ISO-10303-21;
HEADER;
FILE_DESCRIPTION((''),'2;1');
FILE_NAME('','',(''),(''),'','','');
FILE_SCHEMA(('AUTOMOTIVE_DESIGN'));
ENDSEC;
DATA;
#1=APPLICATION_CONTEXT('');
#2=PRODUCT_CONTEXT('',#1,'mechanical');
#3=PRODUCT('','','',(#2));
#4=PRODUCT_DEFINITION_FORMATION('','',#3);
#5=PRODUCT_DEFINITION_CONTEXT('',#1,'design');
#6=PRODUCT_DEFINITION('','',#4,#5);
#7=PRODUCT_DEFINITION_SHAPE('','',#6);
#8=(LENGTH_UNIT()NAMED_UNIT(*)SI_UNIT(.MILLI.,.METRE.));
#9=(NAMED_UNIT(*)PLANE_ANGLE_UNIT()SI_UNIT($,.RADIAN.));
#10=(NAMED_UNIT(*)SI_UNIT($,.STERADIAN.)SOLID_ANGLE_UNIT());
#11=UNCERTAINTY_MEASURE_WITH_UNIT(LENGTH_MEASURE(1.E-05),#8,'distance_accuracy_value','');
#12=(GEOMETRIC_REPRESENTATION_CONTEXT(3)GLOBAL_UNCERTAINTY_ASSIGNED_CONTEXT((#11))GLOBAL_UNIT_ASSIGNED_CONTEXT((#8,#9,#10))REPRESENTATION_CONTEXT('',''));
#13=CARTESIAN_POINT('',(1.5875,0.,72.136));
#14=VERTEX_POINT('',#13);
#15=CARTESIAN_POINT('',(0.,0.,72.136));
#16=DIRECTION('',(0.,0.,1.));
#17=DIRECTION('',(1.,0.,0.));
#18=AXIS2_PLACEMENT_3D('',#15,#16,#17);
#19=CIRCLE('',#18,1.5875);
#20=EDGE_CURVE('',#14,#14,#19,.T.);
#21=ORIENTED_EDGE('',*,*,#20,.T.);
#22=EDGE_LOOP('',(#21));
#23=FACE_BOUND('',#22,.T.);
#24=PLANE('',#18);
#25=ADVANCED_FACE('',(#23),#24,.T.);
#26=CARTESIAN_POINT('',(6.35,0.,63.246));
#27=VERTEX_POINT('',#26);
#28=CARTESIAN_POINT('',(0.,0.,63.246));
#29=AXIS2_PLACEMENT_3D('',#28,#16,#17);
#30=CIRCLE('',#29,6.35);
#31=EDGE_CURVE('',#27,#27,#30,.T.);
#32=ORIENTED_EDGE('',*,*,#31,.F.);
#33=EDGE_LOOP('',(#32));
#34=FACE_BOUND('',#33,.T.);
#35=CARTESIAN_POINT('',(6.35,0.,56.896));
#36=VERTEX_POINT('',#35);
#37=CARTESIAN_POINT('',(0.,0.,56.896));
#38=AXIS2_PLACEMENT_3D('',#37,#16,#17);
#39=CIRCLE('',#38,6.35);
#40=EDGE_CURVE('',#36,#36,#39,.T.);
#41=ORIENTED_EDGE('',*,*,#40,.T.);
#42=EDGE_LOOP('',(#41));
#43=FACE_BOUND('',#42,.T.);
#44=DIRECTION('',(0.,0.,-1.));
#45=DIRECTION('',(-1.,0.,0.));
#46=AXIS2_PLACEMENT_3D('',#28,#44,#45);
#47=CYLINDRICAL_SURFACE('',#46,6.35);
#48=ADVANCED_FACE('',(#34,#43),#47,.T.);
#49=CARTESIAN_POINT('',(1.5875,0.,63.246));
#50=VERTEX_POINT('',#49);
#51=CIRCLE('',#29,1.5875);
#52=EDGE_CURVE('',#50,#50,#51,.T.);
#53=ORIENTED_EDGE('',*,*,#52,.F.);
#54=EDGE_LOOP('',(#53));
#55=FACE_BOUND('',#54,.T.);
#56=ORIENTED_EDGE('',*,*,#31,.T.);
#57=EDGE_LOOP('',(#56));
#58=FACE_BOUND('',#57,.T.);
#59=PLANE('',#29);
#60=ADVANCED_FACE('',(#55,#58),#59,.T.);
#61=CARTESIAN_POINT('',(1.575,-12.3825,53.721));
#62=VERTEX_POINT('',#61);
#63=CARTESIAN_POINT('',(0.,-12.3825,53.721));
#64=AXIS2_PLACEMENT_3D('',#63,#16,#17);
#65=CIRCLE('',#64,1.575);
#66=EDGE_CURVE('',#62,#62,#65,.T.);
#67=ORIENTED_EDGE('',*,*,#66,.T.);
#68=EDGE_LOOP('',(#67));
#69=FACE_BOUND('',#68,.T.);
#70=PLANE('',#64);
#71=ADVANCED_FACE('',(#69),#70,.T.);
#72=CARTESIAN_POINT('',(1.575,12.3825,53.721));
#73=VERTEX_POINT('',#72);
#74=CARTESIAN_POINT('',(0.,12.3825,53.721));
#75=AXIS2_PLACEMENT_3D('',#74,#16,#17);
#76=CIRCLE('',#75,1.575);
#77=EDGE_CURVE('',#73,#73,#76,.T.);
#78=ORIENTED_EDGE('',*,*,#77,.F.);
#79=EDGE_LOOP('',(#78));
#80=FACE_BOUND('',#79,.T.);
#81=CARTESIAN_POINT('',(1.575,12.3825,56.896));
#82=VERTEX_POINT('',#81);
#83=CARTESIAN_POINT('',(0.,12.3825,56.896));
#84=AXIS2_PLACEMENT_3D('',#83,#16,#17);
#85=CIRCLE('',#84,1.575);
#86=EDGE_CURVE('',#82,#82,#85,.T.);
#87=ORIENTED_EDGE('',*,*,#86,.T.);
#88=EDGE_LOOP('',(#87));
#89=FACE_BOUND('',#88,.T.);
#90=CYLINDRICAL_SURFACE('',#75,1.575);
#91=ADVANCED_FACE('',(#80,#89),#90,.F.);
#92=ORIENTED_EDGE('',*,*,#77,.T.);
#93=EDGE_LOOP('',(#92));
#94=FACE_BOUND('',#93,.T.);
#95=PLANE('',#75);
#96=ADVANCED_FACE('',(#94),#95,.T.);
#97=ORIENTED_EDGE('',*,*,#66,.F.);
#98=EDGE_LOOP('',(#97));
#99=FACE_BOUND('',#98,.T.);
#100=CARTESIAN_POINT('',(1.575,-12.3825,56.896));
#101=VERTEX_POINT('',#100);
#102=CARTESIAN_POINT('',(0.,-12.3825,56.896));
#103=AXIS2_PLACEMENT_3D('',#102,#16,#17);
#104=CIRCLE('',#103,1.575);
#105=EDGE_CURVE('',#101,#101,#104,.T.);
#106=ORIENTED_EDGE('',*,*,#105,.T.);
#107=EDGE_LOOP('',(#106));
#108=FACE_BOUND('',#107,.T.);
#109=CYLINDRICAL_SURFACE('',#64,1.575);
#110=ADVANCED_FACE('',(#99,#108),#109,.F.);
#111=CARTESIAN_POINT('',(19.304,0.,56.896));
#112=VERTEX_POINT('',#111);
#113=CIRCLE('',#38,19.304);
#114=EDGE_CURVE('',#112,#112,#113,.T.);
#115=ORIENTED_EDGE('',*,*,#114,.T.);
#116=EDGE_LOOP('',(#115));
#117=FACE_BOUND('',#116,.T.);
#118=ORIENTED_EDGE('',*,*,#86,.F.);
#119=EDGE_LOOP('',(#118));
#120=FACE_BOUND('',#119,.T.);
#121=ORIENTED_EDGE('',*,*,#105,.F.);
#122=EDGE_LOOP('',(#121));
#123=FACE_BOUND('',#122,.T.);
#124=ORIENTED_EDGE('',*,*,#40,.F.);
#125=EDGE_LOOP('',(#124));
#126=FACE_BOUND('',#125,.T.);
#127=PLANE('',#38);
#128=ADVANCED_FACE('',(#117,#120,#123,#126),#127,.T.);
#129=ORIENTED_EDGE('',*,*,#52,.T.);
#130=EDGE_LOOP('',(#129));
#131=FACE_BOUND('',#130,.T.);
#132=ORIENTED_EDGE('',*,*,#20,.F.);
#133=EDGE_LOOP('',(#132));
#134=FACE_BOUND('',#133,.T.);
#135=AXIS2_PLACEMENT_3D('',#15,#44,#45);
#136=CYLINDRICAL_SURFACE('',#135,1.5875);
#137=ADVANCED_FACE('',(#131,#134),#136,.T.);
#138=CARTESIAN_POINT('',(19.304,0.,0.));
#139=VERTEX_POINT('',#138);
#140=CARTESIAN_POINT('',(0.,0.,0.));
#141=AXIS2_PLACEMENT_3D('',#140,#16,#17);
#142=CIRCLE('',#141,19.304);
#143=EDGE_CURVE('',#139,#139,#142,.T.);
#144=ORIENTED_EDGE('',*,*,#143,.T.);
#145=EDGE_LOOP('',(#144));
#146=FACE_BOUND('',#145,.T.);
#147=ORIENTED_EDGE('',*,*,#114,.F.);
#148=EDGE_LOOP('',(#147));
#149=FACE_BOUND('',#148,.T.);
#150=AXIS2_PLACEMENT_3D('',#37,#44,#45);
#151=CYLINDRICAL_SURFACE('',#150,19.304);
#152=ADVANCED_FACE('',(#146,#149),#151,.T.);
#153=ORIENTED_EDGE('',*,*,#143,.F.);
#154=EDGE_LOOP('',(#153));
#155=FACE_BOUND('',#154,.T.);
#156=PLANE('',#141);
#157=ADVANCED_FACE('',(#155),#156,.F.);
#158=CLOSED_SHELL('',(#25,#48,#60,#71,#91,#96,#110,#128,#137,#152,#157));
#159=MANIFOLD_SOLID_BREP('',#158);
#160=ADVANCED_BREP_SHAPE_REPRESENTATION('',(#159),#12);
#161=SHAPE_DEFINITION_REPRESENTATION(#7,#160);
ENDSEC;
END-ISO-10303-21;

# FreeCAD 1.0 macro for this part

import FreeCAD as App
import Part
import Sketcher
Q = App.Units.Quantity

doc = App.newDocument("Part")
params = doc.addObject("Spreadsheet::Sheet", "Params")
for row, (alias, value) in enumerate([
    ("sketch1_diameter", "1.52 in"),
    ("pad1_length", "2.24 in"),
    ("sketch2_diameter", "0.5 in"),
    ("pad2_length", "0.25 in"),
    ("pocket1_length", "0.125 in"),
    ("sketch4_diameter", "0.125 in"),
    ("pad3_length", "0.35 in"),
], start=1):
    params.set(f"A{row}", alias)
    params.set(f"B{row}", "=" + value)
    params.setAlias(f"B{row}", alias)

body = doc.addObject("PartDesign::Body", "Body")

sketch1 = doc.addObject("Sketcher::SketchObject", "Sketch")
body.addObject(sketch1)
sketch1.AttachmentSupport = (doc.XY_Plane, [""])
sketch1.MapMode = "FlatFace"
sketch1.addGeometry(Part.Circle(App.Vector(0, 0, 0), App.Vector(0, 0, 1), 19.304), False)
sketch1.addConstraint([
    Sketcher.Constraint("Coincident", 0, 3, -1, 1),
    Sketcher.Constraint("Diameter", 0, Q("1.52 in")),
])
sketch1.setExpression("Constraints[1]", "Params.sketch1_diameter")
pad1 = doc.addObject("PartDesign::Pad", "Pad")
body.addObject(pad1)
pad1.Profile = sketch1
pad1.setExpression("Length", "Params.pad1_length")

sketch2 = doc.addObject("Sketcher::SketchObject", "Sketch001")
body.addObject(sketch2)
sketch2.AttachmentSupport = (doc.XY_Plane, [""])
sketch2.MapMode = "FlatFace"
sketch2.AttachmentOffset = App.Placement(App.Vector(0, 0, 2.24 * 25.4), App.Rotation())
sketch2.addGeometry(Part.Circle(App.Vector(0, 0, 0), App.Vector(0, 0, 1), 6.35), False)
sketch2.addConstraint([
    Sketcher.Constraint("Coincident", 0, 3, -1, 1),
    Sketcher.Constraint("Diameter", 0, Q("0.5 in")),
])
sketch2.setExpression("Constraints[1]", "Params.sketch2_diameter")
pad2 = doc.addObject("PartDesign::Pad", "Pad001")
body.addObject(pad2)
pad2.Profile = sketch2
pad2.setExpression("Length", "Params.pad2_length")

sketch3 = doc.addObject("Sketcher::SketchObject", "Sketch002")
body.addObject(sketch3)
sketch3.AttachmentSupport = (doc.XY_Plane, [""])
sketch3.MapMode = "FlatFace"
sketch3.AttachmentOffset = App.Placement(App.Vector(0, 0, 2.24 * 25.4), App.Rotation())
sketch3.addGeometry([
    Part.Circle(App.Vector(0, 12.3825, 0), App.Vector(0, 0, 1), 1.575),
    Part.Circle(App.Vector(0, -12.3825, 0), App.Vector(0, 0, 1), 1.575),
], False)
sketch3.addConstraint([
    Sketcher.Constraint("Equal", 0, 1),
    Sketcher.Constraint("Symmetric", 0, 3, 1, 3, -1, 1),
    Sketcher.Constraint("PointOnObject", 0, 3, -2),
    Sketcher.Constraint("Diameter", 0, 3.15),
    Sketcher.Constraint("DistanceY", 1, 3, 0, 3, Q("0.975 in")),
])
pocket1 = doc.addObject("PartDesign::Pocket", "Pocket")
body.addObject(pocket1)
pocket1.Profile = sketch3
pocket1.setExpression("Length", "Params.pocket1_length")

sketch4 = doc.addObject("Sketcher::SketchObject", "Sketch003")
body.addObject(sketch4)
sketch4.AttachmentSupport = (doc.XY_Plane, [""])
sketch4.MapMode = "FlatFace"
sketch4.AttachmentOffset = App.Placement(App.Vector(0, 0, 2.49 * 25.4), App.Rotation())
sketch4.addGeometry(Part.Circle(App.Vector(0, 0, 0), App.Vector(0, 0, 1), 1.5875), False)
sketch4.addConstraint([
    Sketcher.Constraint("Coincident", 0, 3, -1, 1),
    Sketcher.Constraint("Diameter", 0, Q("0.125 in")),
])
sketch4.setExpression("Constraints[1]", "Params.sketch4_diameter")
pad3 = doc.addObject("PartDesign::Pad", "Pad002")
body.addObject(pad3)
pad3.Profile = sketch4
pad3.setExpression("Length", "Params.pad3_length")

doc.recompute()
